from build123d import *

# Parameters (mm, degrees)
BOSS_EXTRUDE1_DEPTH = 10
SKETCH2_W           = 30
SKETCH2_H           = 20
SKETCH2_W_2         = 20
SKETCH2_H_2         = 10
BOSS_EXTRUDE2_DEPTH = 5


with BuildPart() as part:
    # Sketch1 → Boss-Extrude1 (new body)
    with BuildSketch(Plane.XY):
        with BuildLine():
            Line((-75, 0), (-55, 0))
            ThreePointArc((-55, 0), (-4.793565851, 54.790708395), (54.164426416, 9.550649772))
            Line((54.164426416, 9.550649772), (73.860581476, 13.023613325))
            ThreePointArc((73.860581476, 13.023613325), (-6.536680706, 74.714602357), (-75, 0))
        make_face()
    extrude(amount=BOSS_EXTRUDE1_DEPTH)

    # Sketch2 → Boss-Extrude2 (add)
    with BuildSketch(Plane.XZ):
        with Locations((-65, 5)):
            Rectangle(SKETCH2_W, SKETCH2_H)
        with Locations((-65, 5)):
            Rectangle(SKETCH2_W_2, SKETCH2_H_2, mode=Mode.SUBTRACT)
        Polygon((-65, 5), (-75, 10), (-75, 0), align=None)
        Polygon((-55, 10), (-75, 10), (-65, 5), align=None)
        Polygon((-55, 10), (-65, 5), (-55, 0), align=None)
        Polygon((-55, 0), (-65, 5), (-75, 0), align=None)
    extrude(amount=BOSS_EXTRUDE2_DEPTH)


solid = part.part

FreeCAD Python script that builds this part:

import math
import FreeCAD as App
import Part
import Sketcher

V = App.Vector
Q = App.Units.Quantity


def add_polygon(sketch, points):
    """Adds a closed chain of lines whose ends are joined by coincident constraints."""
    first, n = sketch.GeometryCount, len(points)
    for a, b in zip(points, points[1:] + points[:1]):
        sketch.addGeometry(Part.LineSegment(App.Vector(*a, 0), App.Vector(*b, 0)), False)
    for i in range(n):
        sketch.addConstraint(Sketcher.Constraint("Coincident", first + i, 2, first + (i + 1) % n, 1))

doc = App.newDocument("Part")
params = doc.addObject("Spreadsheet::Sheet", "Params")
for row, (alias, value) in enumerate([
    ("sketch1_radius", "55 mm"),
    ("sketch1_radius2", "75 mm"),
    ("pad1_length", "10 mm"),
    ("sketch2_width", "30 mm"),
    ("sketch2_height", "20 mm"),
    ("pad2_length", "5 mm"),
], start=1):
    params.set(f"A{row}", alias)
    params.set(f"B{row}", "=" + value)
    params.setAlias(f"B{row}", alias)

body = doc.addObject("PartDesign::Body", "Body")

sketch1 = body.newObject("Sketcher::SketchObject", "Sketch")
sketch1.AttachmentSupport = (doc.getObject("XY_Plane"), [""])
sketch1.MapMode = "FlatFace"
sketch1.addGeometry(Part.LineSegment(V(-75, 0, 0), V(-55, 0, 0)), False)
sketch1.addGeometry(Part.ArcOfCircle(Part.Circle(V(0, 0, 0), V(0, 0, 1), 55), math.radians(10), math.radians(180)), False)
sketch1.addGeometry(Part.LineSegment(V(54.164426, 9.55065, 0), V(73.860581, 13.023613, 0)), False)
sketch1.addGeometry(Part.ArcOfCircle(Part.Circle(V(0, 0, 0), V(0, 0, 1), 75), math.radians(10), math.radians(180)), False)
sketch1.addConstraint(Sketcher.Constraint("Coincident", 0, 2, 1, 2))
sketch1.addConstraint(Sketcher.Constraint("Coincident", 1, 1, 2, 1))
sketch1.addConstraint(Sketcher.Constraint("Coincident", 2, 2, 3, 1))
sketch1.addConstraint(Sketcher.Constraint("Coincident", 3, 2, 0, 1))
sketch1.addConstraint(Sketcher.Constraint("Horizontal", 0))
sketch1.addConstraint(Sketcher.Constraint("Coincident", 1, 3, -1, 1))
sketch1.addConstraint(Sketcher.Constraint("Coincident", 3, 3, -1, 1))
sketch1.addConstraint(Sketcher.Constraint("PointOnObject", 0, 2, -1))
sketch1.addConstraint(Sketcher.Constraint("Radius", 1, 55.0))
sketch1.addConstraint(Sketcher.Constraint("Radius", 3, 75.0))
sketch1.addConstraint(Sketcher.Constraint("Angle", 2, Q("10 deg")))
sketch1.addConstraint(Sketcher.Constraint("DistanceY", -1, 1, 1, 1, 9.55065))
sketch1.setExpression("Constraints[8]", "Params.sketch1_radius")
sketch1.setExpression("Constraints[9]", "Params.sketch1_radius2")
pad1 = body.newObject("PartDesign::Pad", "Pad")
pad1.Profile = sketch1
pad1.setExpression("Length", "Params.pad1_length")

sketch2 = body.newObject("Sketcher::SketchObject", "Sketch001")
sketch2.AttachmentSupport = (doc.getObject("XZ_Plane"), [""])
sketch2.MapMode = "FlatFace"
add_polygon(sketch2, [(-80, 15), (-80, -5), (-50, -5), (-50, 15)])
sketch2.addConstraint(Sketcher.Constraint("Vertical", 0))
sketch2.addConstraint(Sketcher.Constraint("Horizontal", 1))
sketch2.addConstraint(Sketcher.Constraint("Vertical", 2))
sketch2.addConstraint(Sketcher.Constraint("Horizontal", 3))
sketch2.addConstraint(Sketcher.Constraint("DistanceX", 1, 1, 1, 2, 30.0))
sketch2.addConstraint(Sketcher.Constraint("DistanceY", 0, 2, 0, 1, 20.0))
sketch2.addConstraint(Sketcher.Constraint("DistanceX", 0, 2, -1, 1, 80.0))
sketch2.addConstraint(Sketcher.Constraint("DistanceY", 0, 2, -1, 1, 5.0))
sketch2.setExpression("Constraints[8]", "Params.sketch2_width")
sketch2.setExpression("Constraints[9]", "Params.sketch2_height")
pad2 = body.newObject("PartDesign::Pad", "Pad001")
pad2.Profile = sketch2
pad2.setExpression("Length", "Params.pad2_length")

doc.recompute()
